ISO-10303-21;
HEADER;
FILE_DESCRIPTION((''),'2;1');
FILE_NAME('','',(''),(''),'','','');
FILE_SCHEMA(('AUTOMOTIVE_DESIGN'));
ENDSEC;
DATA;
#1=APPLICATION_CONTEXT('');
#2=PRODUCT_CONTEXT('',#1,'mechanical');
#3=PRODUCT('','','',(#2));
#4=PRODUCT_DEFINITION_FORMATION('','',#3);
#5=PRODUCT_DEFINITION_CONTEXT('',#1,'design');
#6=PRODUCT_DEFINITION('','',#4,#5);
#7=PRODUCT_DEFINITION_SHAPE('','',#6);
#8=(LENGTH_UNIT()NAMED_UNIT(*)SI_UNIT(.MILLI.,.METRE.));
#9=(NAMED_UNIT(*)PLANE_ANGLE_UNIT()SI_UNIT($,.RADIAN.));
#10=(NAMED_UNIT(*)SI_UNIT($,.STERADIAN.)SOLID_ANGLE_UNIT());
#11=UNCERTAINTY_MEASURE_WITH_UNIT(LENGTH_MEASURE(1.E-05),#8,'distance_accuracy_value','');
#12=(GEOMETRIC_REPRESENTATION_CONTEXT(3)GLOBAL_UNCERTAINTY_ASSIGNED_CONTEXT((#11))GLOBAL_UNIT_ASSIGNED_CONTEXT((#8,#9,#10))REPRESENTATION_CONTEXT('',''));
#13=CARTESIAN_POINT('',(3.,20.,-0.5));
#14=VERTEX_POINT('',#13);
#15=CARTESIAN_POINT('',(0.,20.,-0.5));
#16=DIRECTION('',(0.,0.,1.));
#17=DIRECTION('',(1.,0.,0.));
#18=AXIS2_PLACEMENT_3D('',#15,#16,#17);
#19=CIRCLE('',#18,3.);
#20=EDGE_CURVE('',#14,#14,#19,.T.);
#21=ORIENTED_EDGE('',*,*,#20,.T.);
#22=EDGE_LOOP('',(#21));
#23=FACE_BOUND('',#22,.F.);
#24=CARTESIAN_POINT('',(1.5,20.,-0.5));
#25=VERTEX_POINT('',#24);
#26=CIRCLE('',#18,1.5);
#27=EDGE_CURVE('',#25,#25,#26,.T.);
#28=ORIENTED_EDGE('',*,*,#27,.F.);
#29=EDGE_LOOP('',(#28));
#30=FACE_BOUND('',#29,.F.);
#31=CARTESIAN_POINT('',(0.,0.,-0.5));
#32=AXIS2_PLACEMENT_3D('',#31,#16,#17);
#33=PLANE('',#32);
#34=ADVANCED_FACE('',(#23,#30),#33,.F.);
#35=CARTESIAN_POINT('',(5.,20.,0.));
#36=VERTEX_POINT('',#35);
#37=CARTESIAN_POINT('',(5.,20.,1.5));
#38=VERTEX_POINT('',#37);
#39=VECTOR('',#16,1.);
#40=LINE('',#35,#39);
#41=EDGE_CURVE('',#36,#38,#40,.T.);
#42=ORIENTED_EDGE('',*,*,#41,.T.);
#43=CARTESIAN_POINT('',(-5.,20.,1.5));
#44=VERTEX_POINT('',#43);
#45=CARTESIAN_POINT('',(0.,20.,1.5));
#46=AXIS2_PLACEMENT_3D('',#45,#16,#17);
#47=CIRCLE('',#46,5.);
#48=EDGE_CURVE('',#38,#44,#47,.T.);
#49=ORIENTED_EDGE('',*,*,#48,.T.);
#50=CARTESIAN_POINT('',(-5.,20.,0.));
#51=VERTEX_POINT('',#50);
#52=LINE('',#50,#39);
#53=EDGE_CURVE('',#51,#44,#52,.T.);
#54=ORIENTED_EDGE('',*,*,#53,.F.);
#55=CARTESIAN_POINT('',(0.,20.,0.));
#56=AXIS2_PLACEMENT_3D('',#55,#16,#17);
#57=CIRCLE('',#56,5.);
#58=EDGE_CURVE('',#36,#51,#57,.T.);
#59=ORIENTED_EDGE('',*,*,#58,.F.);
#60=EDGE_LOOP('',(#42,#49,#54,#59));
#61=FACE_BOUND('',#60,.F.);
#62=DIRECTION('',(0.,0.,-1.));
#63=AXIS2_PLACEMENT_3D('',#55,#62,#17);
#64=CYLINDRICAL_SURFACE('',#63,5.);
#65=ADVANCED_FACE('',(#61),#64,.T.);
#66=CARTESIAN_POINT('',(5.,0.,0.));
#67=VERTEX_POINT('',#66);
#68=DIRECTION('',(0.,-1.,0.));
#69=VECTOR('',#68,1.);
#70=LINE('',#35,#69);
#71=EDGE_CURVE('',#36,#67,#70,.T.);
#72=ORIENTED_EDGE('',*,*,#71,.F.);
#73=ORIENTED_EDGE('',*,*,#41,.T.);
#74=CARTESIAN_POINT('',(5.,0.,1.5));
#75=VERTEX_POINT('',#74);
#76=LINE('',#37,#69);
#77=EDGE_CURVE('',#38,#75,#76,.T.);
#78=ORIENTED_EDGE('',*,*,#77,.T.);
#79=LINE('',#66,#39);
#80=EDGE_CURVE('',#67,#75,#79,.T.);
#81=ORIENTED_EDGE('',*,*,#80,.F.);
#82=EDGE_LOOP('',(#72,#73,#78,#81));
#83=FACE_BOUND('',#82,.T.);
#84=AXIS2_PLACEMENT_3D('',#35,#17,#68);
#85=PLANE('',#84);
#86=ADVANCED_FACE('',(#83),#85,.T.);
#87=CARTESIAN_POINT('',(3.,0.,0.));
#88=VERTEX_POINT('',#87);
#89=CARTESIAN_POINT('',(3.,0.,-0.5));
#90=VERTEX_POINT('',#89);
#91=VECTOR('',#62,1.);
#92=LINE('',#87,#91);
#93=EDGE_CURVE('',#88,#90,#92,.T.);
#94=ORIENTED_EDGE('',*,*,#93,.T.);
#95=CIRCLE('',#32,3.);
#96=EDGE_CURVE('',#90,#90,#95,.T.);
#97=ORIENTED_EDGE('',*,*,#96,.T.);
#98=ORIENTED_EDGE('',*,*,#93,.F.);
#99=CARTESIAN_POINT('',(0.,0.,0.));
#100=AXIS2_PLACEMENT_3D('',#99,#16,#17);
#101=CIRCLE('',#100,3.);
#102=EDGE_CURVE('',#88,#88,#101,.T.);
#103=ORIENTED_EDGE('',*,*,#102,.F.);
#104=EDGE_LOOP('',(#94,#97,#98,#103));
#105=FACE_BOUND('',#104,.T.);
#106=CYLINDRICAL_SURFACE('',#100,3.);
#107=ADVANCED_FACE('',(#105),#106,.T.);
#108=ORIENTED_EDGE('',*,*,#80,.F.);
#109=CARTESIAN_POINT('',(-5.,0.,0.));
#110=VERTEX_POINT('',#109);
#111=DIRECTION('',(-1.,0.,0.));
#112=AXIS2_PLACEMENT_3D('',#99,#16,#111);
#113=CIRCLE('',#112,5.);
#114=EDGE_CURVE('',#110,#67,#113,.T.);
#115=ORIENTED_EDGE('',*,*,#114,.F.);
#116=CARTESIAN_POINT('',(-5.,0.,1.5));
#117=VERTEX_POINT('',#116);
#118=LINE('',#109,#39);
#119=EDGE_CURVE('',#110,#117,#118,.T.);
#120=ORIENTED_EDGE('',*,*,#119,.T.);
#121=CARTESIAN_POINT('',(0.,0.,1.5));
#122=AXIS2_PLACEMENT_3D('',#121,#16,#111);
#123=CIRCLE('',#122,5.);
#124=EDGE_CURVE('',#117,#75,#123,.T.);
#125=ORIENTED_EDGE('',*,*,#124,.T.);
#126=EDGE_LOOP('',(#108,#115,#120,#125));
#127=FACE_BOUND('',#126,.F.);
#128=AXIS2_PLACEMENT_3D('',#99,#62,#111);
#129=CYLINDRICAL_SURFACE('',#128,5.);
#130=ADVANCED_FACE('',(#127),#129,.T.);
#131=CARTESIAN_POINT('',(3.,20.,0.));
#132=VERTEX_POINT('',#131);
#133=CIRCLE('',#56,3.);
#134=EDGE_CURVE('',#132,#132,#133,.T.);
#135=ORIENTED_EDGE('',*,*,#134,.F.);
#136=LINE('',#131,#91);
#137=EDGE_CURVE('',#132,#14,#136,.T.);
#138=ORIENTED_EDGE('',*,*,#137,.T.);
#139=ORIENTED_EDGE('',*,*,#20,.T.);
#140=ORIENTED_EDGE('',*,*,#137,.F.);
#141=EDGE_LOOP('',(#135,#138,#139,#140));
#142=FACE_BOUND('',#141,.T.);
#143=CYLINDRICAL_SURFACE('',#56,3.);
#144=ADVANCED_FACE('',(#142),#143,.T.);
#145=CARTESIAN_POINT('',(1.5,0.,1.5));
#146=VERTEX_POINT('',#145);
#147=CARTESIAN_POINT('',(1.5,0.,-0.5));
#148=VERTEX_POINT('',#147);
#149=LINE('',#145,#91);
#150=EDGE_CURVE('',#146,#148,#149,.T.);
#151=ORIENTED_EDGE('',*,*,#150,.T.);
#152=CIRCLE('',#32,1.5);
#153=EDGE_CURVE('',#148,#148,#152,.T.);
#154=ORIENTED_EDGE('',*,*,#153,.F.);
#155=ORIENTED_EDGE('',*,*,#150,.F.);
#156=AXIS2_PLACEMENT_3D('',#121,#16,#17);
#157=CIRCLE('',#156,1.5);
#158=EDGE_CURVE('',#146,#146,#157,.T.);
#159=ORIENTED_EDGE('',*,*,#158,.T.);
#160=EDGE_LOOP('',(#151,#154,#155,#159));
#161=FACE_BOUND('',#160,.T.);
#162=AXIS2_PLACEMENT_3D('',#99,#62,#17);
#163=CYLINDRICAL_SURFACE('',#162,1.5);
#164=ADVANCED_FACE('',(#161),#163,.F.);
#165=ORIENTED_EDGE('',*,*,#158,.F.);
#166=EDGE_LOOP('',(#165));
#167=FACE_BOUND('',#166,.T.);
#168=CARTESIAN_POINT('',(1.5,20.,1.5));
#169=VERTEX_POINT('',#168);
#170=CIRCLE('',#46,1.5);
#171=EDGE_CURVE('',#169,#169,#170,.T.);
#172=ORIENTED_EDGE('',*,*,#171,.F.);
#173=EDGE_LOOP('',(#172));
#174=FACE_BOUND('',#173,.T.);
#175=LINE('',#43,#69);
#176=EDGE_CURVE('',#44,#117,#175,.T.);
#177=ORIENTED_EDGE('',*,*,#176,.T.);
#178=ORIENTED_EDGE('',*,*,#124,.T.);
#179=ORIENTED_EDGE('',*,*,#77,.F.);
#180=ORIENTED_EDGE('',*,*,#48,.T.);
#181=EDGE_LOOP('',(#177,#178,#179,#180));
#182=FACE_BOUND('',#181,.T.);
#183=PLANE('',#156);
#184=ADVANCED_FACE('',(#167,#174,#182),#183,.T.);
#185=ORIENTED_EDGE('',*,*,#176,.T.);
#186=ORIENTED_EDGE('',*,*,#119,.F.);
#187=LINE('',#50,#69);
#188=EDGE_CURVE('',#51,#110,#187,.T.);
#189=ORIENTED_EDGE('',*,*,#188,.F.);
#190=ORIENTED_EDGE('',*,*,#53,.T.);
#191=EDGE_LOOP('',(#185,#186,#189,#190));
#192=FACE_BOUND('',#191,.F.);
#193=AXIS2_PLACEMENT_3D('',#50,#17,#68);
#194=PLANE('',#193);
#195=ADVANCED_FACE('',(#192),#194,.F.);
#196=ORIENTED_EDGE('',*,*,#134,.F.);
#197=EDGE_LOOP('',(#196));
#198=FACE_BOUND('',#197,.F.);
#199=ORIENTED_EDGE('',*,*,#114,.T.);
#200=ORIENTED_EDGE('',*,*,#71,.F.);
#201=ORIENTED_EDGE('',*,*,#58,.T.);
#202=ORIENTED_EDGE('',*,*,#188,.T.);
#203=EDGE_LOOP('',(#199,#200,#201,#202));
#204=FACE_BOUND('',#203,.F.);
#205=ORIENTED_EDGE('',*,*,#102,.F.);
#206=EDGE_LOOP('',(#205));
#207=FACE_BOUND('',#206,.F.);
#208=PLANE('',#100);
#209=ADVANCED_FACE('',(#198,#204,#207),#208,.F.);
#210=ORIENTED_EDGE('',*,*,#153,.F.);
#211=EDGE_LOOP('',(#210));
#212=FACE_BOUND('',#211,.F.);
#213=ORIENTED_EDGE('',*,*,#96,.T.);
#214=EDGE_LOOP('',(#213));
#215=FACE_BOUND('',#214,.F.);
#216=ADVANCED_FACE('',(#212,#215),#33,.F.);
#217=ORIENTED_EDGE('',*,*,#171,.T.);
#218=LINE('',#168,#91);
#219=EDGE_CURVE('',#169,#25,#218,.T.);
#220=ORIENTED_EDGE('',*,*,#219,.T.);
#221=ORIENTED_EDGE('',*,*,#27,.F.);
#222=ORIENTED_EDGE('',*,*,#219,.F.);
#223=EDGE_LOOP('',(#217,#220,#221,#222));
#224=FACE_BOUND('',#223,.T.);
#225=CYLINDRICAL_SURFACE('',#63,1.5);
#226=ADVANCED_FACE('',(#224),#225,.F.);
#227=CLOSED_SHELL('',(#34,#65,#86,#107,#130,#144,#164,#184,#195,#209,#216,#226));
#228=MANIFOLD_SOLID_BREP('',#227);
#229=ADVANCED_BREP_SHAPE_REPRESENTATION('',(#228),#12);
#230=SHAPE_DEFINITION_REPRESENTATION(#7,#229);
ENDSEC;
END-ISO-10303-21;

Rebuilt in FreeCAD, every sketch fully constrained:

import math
import FreeCAD as App
import Part
import Sketcher
from FreeCAD import Vector
Q = App.Units.Quantity

doc = App.newDocument("Part")
body = doc.addObject("PartDesign::Body", "Body")

sketch1 = doc.addObject("Sketcher::SketchObject", "Sketch")
body.addObject(sketch1)
sketch1.AttachmentSupport = (doc.XY_Plane, [""])
sketch1.MapMode = "FlatFace"
sketch1.addGeometry([
    Part.LineSegment(Vector(-5, 20, 0), Vector(-5, 0, 0)),
    Part.ArcOfCircle(Part.Circle(Vector(0, 0, 0), Vector(0, 0, 1), 5), math.radians(180), math.radians(360)),
    Part.LineSegment(Vector(5, 0, 0), Vector(5, 20, 0)),
    Part.ArcOfCircle(Part.Circle(Vector(0, 20, 0), Vector(0, 0, 1), 5), math.radians(0), math.radians(180)),
    Part.Circle(Vector(0, 0, 0), Vector(0, 0, 1), 1.5),
    Part.Circle(Vector(0, 20, 0), Vector(0, 0, 1), 1.5),
], False)
sketch1.addConstraint([
    Sketcher.Constraint("Tangent", 0, 2, 1, 1),
    Sketcher.Constraint("Tangent", 1, 2, 2, 1),
    Sketcher.Constraint("Tangent", 2, 2, 3, 1),
    Sketcher.Constraint("Tangent", 3, 2, 0, 1),
    Sketcher.Constraint("Vertical", 0),
    Sketcher.Constraint("Vertical", 2),
    Sketcher.Constraint("Coincident", 1, 3, -1, 1),
    Sketcher.Constraint("Coincident", 4, 3, -1, 1),
    Sketcher.Constraint("Coincident", 5, 3, 3, 3),
    Sketcher.Constraint("Equal", 4, 5),
    Sketcher.Constraint("Diameter", 4, Q("3 mm")),
    Sketcher.Constraint("Radius", 1, Q("5 mm")),
    Sketcher.Constraint("DistanceY", 0, 2, 0, 1, Q("20 mm")),
])
pad1 = doc.addObject("PartDesign::Pad", "Pad")
body.addObject(pad1)
pad1.Profile = sketch1
pad1.Length = 1.5

sketch2 = doc.addObject("Sketcher::SketchObject", "Sketch001")
body.addObject(sketch2)
sketch2.AttachmentSupport = (doc.XY_Plane, [""])
sketch2.MapMode = "FlatFace"
sketch2.addGeometry([
    Part.Circle(Vector(0, 0, 0), Vector(0, 0, 1), 3),
    Part.Circle(Vector(0, 0, 0), Vector(0, 0, 1), 1.5),
    Part.Circle(Vector(0, 20, 0), Vector(0, 0, 1), 3),
    Part.Circle(Vector(0, 20, 0), Vector(0, 0, 1), 1.5),
], False)
sketch2.addConstraint([
    Sketcher.Constraint("Coincident", 0, 3, -1, 1),
    Sketcher.Constraint("Coincident", 1, 3, -1, 1),
    Sketcher.Constraint("Coincident", 3, 3, 2, 3),
    Sketcher.Constraint("Equal", 0, 2),
    Sketcher.Constraint("Equal", 1, 3),
    Sketcher.Constraint("PointOnObject", 2, 3, -2),
    Sketcher.Constraint("Diameter", 0, Q("6 mm")),
    Sketcher.Constraint("Diameter", 1, Q("3 mm")),
    Sketcher.Constraint("DistanceY", -1, 1, 2, 3, Q("20 mm")),
])
pad2 = doc.addObject("PartDesign::Pad", "Pad001")
body.addObject(pad2)
pad2.Profile = sketch2
pad2.Length = 0.5
pad2.Reversed = True

doc.recompute()
